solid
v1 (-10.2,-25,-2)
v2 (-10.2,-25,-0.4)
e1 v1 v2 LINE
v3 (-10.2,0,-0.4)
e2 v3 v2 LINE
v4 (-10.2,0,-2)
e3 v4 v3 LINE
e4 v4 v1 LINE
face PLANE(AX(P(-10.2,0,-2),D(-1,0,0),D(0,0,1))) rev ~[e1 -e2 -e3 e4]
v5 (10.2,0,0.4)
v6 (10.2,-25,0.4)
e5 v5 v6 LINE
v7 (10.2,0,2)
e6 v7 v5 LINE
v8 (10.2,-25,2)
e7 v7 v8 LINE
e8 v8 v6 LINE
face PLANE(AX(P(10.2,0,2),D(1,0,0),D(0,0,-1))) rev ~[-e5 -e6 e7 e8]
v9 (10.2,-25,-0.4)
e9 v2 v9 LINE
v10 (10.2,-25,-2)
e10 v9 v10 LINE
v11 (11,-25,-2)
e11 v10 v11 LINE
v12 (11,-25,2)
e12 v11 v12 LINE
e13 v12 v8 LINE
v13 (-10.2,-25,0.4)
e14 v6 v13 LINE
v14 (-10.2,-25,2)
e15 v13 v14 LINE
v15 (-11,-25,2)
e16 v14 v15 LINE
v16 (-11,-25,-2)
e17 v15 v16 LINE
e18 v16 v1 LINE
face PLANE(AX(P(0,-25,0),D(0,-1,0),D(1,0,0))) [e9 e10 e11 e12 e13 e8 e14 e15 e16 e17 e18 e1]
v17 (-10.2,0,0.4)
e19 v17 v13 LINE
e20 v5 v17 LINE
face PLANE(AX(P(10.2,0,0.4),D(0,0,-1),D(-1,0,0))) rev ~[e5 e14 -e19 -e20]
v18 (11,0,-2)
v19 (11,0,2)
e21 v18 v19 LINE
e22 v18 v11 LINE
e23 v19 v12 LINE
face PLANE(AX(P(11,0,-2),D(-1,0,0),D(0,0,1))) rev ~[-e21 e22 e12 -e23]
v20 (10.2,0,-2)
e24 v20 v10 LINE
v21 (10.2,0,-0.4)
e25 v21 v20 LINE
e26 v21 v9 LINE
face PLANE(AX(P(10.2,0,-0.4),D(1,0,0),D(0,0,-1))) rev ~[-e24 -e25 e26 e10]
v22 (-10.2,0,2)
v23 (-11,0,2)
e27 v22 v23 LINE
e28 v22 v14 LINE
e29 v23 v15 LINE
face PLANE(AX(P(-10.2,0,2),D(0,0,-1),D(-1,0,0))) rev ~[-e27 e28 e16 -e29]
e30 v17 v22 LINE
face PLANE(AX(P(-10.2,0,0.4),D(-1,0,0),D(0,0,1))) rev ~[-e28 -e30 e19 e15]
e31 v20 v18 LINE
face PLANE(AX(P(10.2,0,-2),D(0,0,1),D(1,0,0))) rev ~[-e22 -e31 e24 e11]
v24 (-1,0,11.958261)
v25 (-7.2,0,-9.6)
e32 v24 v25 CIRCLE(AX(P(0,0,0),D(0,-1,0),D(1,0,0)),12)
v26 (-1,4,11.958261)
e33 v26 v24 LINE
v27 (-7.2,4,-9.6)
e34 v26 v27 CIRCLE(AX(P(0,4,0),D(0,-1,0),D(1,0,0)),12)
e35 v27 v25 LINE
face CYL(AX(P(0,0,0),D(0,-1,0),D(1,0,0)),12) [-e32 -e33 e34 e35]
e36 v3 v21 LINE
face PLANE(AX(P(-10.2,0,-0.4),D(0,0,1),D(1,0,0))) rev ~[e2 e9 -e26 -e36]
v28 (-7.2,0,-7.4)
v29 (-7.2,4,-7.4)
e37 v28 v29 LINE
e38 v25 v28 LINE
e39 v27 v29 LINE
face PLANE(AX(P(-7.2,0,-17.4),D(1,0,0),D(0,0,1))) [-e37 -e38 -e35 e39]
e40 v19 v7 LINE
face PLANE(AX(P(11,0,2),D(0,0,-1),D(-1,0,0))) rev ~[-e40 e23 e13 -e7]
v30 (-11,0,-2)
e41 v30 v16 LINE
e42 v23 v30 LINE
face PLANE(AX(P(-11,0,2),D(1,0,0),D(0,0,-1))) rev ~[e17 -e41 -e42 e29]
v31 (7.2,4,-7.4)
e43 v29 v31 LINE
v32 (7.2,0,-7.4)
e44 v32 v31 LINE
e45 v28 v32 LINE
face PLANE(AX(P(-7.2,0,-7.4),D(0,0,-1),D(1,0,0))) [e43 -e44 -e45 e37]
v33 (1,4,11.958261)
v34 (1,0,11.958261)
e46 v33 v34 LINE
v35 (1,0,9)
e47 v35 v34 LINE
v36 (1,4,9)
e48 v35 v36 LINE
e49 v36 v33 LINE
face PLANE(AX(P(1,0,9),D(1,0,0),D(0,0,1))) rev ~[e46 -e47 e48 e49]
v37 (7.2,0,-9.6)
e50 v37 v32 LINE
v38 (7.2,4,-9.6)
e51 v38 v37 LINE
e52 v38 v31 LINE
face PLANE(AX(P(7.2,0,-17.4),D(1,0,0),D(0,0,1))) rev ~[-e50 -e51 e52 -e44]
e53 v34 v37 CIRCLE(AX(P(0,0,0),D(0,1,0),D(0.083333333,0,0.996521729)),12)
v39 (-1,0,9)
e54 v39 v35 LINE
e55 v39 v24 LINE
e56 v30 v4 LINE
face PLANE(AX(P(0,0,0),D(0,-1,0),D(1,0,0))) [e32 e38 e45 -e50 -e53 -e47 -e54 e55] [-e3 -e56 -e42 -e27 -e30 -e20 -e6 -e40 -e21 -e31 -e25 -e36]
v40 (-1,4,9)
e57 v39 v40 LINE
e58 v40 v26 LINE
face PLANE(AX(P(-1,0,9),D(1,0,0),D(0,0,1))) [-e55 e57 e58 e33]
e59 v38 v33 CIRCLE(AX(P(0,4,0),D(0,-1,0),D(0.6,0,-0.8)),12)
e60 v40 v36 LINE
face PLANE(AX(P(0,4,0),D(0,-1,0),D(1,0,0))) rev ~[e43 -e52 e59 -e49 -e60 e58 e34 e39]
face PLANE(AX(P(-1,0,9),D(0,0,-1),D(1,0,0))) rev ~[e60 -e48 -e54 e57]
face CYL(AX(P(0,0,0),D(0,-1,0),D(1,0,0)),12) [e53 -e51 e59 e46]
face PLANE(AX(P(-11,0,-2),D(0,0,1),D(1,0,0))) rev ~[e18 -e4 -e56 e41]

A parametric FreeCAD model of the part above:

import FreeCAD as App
import Part
import Sketcher
from FreeCAD import Vector
Q = App.Units.Quantity

doc = App.newDocument("Part")
body = doc.addObject("PartDesign::Body", "Body")

sketch1 = doc.addObject("Sketcher::SketchObject", "Sketch")
body.addObject(sketch1)
sketch1.AttachmentSupport = (doc.XZ_Plane, [""])
sketch1.MapMode = "FlatFace"
sketch1.addGeometry(Part.Circle(Vector(0, 0, 0), Vector(0, 0, 1), 12), False)
sketch1.addConstraint(Sketcher.Constraint("Coincident", 0, 3, -1, 1))
sketch1.addConstraint(Sketcher.Constraint("Diameter", 0, Q("24 mm")))
pad1 = doc.addObject("PartDesign::Pad", "Pad")
body.addObject(pad1)
pad1.Profile = sketch1
pad1.Length = 4
pad1.Reversed = True

sketch2 = doc.addObject("Sketcher::SketchObject", "Sketch001")
body.addObject(sketch2)
sketch2.AttachmentSupport = (doc.XZ_Plane, [""])
sketch2.MapMode = "FlatFace"
sketch2.addGeometry(Part.LineSegment(Vector(10.2, 0.4, 0), Vector(-10.2, 0.4, 0)), False)
sketch2.addGeometry(Part.LineSegment(Vector(-10.2, 0.4, 0), Vector(-10.2, 2, 0)), False)
sketch2.addGeometry(Part.LineSegment(Vector(-10.2, 2, 0), Vector(-11, 2, 0)), False)
sketch2.addGeometry(Part.LineSegment(Vector(-11, 2, 0), Vector(-11, -2, 0)), False)
sketch2.addGeometry(Part.LineSegment(Vector(-11, -2, 0), Vector(-10.2, -2, 0)), False)
sketch2.addGeometry(Part.LineSegment(Vector(-10.2, -2, 0), Vector(-10.2, -0.4, 0)), False)
sketch2.addGeometry(Part.LineSegment(Vector(-10.2, -0.4, 0), Vector(10.2, -0.4, 0)), False)
sketch2.addGeometry(Part.LineSegment(Vector(10.2, -0.4, 0), Vector(10.2, -2, 0)), False)
sketch2.addGeometry(Part.LineSegment(Vector(10.2, -2, 0), Vector(11, -2, 0)), False)
sketch2.addGeometry(Part.LineSegment(Vector(11, -2, 0), Vector(11, 2, 0)), False)
sketch2.addGeometry(Part.LineSegment(Vector(11, 2, 0), Vector(10.2, 2, 0)), False)
sketch2.addGeometry(Part.LineSegment(Vector(10.2, 2, 0), Vector(10.2, 0.4, 0)), False)
sketch2.addConstraint(Sketcher.Constraint("Coincident", 0, 2, 1, 1))
sketch2.addConstraint(Sketcher.Constraint("Coincident", 1, 2, 2, 1))
sketch2.addConstraint(Sketcher.Constraint("Coincident", 2, 2, 3, 1))
sketch2.addConstraint(Sketcher.Constraint("Coincident", 3, 2, 4, 1))
sketch2.addConstraint(Sketcher.Constraint("Coincident", 4, 2, 5, 1))
sketch2.addConstraint(Sketcher.Constraint("Coincident", 5, 2, 6, 1))
sketch2.addConstraint(Sketcher.Constraint("Coincident", 6, 2, 7, 1))
sketch2.addConstraint(Sketcher.Constraint("Coincident", 7, 2, 8, 1))
sketch2.addConstraint(Sketcher.Constraint("Coincident", 8, 2, 9, 1))
sketch2.addConstraint(Sketcher.Constraint("Coincident", 9, 2, 10, 1))
sketch2.addConstraint(Sketcher.Constraint("Coincident", 10, 2, 11, 1))
sketch2.addConstraint(Sketcher.Constraint("Coincident", 11, 2, 0, 1))
sketch2.addConstraint(Sketcher.Constraint("Horizontal", 0))
sketch2.addConstraint(Sketcher.Constraint("Vertical", 1))
sketch2.addConstraint(Sketcher.Constraint("Horizontal", 2))
sketch2.addConstraint(Sketcher.Constraint("Vertical", 3))
sketch2.addConstraint(Sketcher.Constraint("Horizontal", 4))
sketch2.addConstraint(Sketcher.Constraint("Vertical", 5))
sketch2.addConstraint(Sketcher.Constraint("Horizontal", 6))
sketch2.addConstraint(Sketcher.Constraint("Vertical", 7))
sketch2.addConstraint(Sketcher.Constraint("Horizontal", 8))
sketch2.addConstraint(Sketcher.Constraint("Vertical", 9))
sketch2.addConstraint(Sketcher.Constraint("Horizontal", 10))
sketch2.addConstraint(Sketcher.Constraint("Vertical", 11))
sketch2.addConstraint(Sketcher.Constraint("Symmetric", 0, 2, 6, 2, -1, 1))
sketch2.addConstraint(Sketcher.Constraint("Symmetric", 2, 2, 8, 2, -1, 1))
sketch2.addConstraint(Sketcher.Constraint("Symmetric", 4, 2, 10, 2, -1, 1))
sketch2.addConstraint(Sketcher.Constraint("Symmetric", 4, 2, 7, 2, -2))
sketch2.addConstraint(Sketcher.Constraint("DistanceY", 3, 2, 3, 1, Q("4 mm")))
sketch2.addConstraint(Sketcher.Constraint("DistanceX", 0, 2, 0, 1, Q("20.4 mm")))
sketch2.addConstraint(Sketcher.Constraint("DistanceX", 2, 2, 2, 1, Q("0.8 mm")))
sketch2.addConstraint(Sketcher.Constraint("DistanceY", 1, 1, 1, 2, Q("1.6 mm")))
pad2 = doc.addObject("PartDesign::Pad", "Pad001")
body.addObject(pad2)
pad2.Profile = sketch2
pad2.Length = 25

sketch3 = doc.addObject("Sketcher::SketchObject", "Sketch002")
body.addObject(sketch3)
sketch3.AttachmentSupport = (doc.XZ_Plane, [""])
sketch3.MapMode = "FlatFace"
sketch3.addGeometry(Part.LineSegment(Vector(-1, 14.621666, 0), Vector(-1, 9, 0)), False)
sketch3.addGeometry(Part.LineSegment(Vector(-1, 9, 0), Vector(1, 9, 0)), False)
sketch3.addGeometry(Part.LineSegment(Vector(1, 9, 0), Vector(1, 14.621666, 0)), False)
sketch3.addGeometry(Part.LineSegment(Vector(1, 14.621666, 0), Vector(-1, 14.621666, 0)), False)
sketch3.addGeometry(Part.LineSegment(Vector(-7.2, -7.4, 0), Vector(-7.2, -17.4, 0)), False)
sketch3.addGeometry(Part.LineSegment(Vector(-7.2, -17.4, 0), Vector(7.2, -17.4, 0)), False)
sketch3.addGeometry(Part.LineSegment(Vector(7.2, -17.4, 0), Vector(7.2, -7.4, 0)), False)
sketch3.addGeometry(Part.LineSegment(Vector(7.2, -7.4, 0), Vector(-7.2, -7.4, 0)), False)
sketch3.addConstraint(Sketcher.Constraint("Coincident", 0, 2, 1, 1))
sketch3.addConstraint(Sketcher.Constraint("Coincident", 1, 2, 2, 1))
sketch3.addConstraint(Sketcher.Constraint("Coincident", 2, 2, 3, 1))
sketch3.addConstraint(Sketcher.Constraint("Coincident", 3, 2, 0, 1))
sketch3.addConstraint(Sketcher.Constraint("Coincident", 4, 2, 5, 1))
sketch3.addConstraint(Sketcher.Constraint("Coincident", 5, 2, 6, 1))
sketch3.addConstraint(Sketcher.Constraint("Coincident", 6, 2, 7, 1))
sketch3.addConstraint(Sketcher.Constraint("Coincident", 7, 2, 4, 1))
sketch3.addConstraint(Sketcher.Constraint("Vertical", 0))
sketch3.addConstraint(Sketcher.Constraint("Horizontal", 1))
sketch3.addConstraint(Sketcher.Constraint("Vertical", 2))
sketch3.addConstraint(Sketcher.Constraint("Horizontal", 3))
sketch3.addConstraint(Sketcher.Constraint("Vertical", 4))
sketch3.addConstraint(Sketcher.Constraint("Horizontal", 5))
sketch3.addConstraint(Sketcher.Constraint("Vertical", 6))
sketch3.addConstraint(Sketcher.Constraint("Horizontal", 7))
sketch3.addConstraint(Sketcher.Constraint("DistanceX", 1, 1, 1, 2, Q("2 mm")))
sketch3.addConstraint(Sketcher.Constraint("DistanceY", 4, 2, 4, 1, Q("10 mm")))
sketch3.addConstraint(Sketcher.Constraint("DistanceX", 5, 1, 5, 2, Q("14.4 mm")))
sketch3.addConstraint(Sketcher.Constraint("DistanceX", 0, 2, -1, 1, Q("1 mm")))
sketch3.addConstraint(Sketcher.Constraint("DistanceY", -1, 1, 0, 2, Q("9 mm")))
sketch3.addConstraint(Sketcher.Constraint("DistanceX", 4, 2, -1, 1, Q("7.2 mm")))
sketch3.addConstraint(Sketcher.Constraint("DistanceY", 4, 2, -1, 1, Q("17.4 mm")))
sketch3.addConstraint(Sketcher.Constraint("DistanceY", 0, 2, 0, 1, Q("5.621666 mm")))
pocket1 = doc.addObject("PartDesign::Pocket", "Pocket")
body.addObject(pocket1)
pocket1.Profile = sketch3
pocket1.Type = "ThroughAll"

doc.recompute()
